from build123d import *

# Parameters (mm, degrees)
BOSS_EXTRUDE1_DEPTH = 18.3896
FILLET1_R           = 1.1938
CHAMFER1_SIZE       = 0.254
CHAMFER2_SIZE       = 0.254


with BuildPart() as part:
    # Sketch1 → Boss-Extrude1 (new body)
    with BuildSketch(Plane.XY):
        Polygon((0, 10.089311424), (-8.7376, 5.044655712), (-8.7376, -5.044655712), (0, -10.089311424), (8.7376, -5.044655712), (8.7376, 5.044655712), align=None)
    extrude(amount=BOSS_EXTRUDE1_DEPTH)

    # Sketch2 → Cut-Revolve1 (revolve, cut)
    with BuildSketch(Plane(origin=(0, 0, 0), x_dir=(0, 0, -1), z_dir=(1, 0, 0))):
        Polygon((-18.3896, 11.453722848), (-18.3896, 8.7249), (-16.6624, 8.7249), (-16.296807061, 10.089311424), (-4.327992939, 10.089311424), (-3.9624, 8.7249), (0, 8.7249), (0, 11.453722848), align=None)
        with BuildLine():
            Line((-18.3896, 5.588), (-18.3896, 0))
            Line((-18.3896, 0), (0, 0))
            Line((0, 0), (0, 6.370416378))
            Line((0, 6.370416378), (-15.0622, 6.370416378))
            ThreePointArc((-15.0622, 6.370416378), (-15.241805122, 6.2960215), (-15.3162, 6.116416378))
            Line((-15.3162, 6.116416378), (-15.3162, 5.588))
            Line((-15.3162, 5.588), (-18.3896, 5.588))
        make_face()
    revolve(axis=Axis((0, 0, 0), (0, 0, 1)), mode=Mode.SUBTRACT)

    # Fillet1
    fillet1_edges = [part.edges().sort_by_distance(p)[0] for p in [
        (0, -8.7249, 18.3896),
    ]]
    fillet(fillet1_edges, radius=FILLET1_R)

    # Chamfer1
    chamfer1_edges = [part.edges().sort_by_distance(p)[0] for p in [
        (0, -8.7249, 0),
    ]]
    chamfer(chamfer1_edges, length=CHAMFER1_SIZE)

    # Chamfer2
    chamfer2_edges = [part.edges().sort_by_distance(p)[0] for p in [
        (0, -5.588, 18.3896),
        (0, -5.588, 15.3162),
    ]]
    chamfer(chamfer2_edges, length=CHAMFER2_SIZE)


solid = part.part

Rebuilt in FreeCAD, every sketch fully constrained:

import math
import FreeCAD as App
import Part
import Sketcher
from FreeCAD import Vector
Q = App.Units.Quantity


def edges_at(feature, points):
    """Names of the edges that pass closest to the given points."""
    edges = feature.Shape.Edges
    near = lambda p: min(range(len(edges)), key=lambda i: edges[i].distToShape(Part.Vertex(*p))[0])
    return sorted({f"Edge{near(p) + 1}" for p in points})


def add_polygon(sketch, points):
    """Adds a closed chain of lines whose ends are joined by coincident constraints."""
    first, n = sketch.GeometryCount, len(points)
    for a, b in zip(points, points[1:] + points[:1]):
        sketch.addGeometry(Part.LineSegment(App.Vector(*a, 0), App.Vector(*b, 0)), False)
    for i in range(n):
        sketch.addConstraint(Sketcher.Constraint("Coincident", first + i, 2, first + (i + 1) % n, 1))

doc = App.newDocument("Part")
body = doc.addObject("PartDesign::Body", "Body")

sketch1 = body.newObject("Sketcher::SketchObject", "Sketch")
sketch1.AttachmentSupport = (doc.getObject("XY_Plane"), [""])
sketch1.MapMode = "FlatFace"
add_polygon(sketch1, [(0, 10.089311), (-8.7376, 5.044656), (-8.7376, -5.044656), (0, -10.089311), (8.7376, -5.044656), (8.7376, 5.044656)])
sketch1.addConstraint([
    Sketcher.Constraint("Vertical", 1),
    Sketcher.Constraint("Vertical", 4),
    Sketcher.Constraint("Symmetric", 0, 2, 3, 2, -1, 1),
    Sketcher.Constraint("Symmetric", 2, 2, 5, 2, -1, 1),
    Sketcher.Constraint("PointOnObject", 2, 2, -2),
    Sketcher.Constraint("Parallel", 2, 5),
    Sketcher.Constraint("Horizontal", 1, 2, 3, 2),
    Sketcher.Constraint("Angle", 0, Q("-150 deg")),
    Sketcher.Constraint("DistanceX", 0, 2, -1, 1, Q("0.344 in")),
    Sketcher.Constraint("DistanceY", 1, 2, 1, 1, 10.089311),
])
pad1 = body.newObject("PartDesign::Pad", "Pad")
pad1.Profile = sketch1
pad1.Length = Q("0.724 in")

sketch2 = body.newObject("Sketcher::SketchObject", "Sketch001")
sketch2.AttachmentSupport = (doc.getObject("YZ_Plane"), [""])
sketch2.MapMode = "FlatFace"
add_polygon(sketch2, [(11.453723, 18.3896), (8.7249, 18.3896), (8.7249, 16.6624), (10.089311, 16.296807), (10.089311, 4.327993), (8.7249, 3.9624), (8.7249, 0), (11.453723, 0)])
sketch2.addGeometry(Part.LineSegment(Vector(5.588, 18.3896, 0), Vector(0, 18.3896, 0)), False)
sketch2.addGeometry(Part.LineSegment(Vector(0, 18.3896, 0), Vector(0, 0, 0)), False)
sketch2.addGeometry(Part.LineSegment(Vector(0, 0, 0), Vector(6.370416, 0, 0)), False)
sketch2.addGeometry(Part.LineSegment(Vector(6.370416, 0, 0), Vector(6.370416, 15.0622, 0)), False)
sketch2.addGeometry(Part.ArcOfCircle(Part.Circle(Vector(6.116416, 15.0622, 0), Vector(0, 0, 1), 0.254), math.radians(0), math.radians(90)), False)
sketch2.addGeometry(Part.LineSegment(Vector(6.116416, 15.3162, 0), Vector(5.588, 15.3162, 0)), False)
sketch2.addGeometry(Part.LineSegment(Vector(5.588, 15.3162, 0), Vector(5.588, 18.3896, 0)), False)
sketch2.addConstraint([
    Sketcher.Constraint("Coincident", 8, 2, 9, 1),
    Sketcher.Constraint("Coincident", 9, 2, 10, 1),
    Sketcher.Constraint("Coincident", 10, 2, 11, 1),
    Sketcher.Constraint("Tangent", 11, 2, 12, 1),
    Sketcher.Constraint("Tangent", 12, 2, 13, 1),
    Sketcher.Constraint("Coincident", 13, 2, 14, 1),
    Sketcher.Constraint("Coincident", 14, 2, 8, 1),
    Sketcher.Constraint("Horizontal", 0),
    Sketcher.Constraint("Vertical", 1),
    Sketcher.Constraint("Vertical", 3),
    Sketcher.Constraint("Vertical", 5),
    Sketcher.Constraint("Horizontal", 6),
    Sketcher.Constraint("Vertical", 7),
    Sketcher.Constraint("Horizontal", 8),
    Sketcher.Constraint("Vertical", 9),
    Sketcher.Constraint("Horizontal", 10),
    Sketcher.Constraint("Vertical", 11),
    Sketcher.Constraint("Horizontal", 13),
    Sketcher.Constraint("Vertical", 14),
    Sketcher.Constraint("Coincident", 9, 2, -1, 1),
    Sketcher.Constraint("PointOnObject", 5, 2, -1),
    Sketcher.Constraint("Horizontal", 7, 2, 8, 2),
    Sketcher.Constraint("Vertical", 1, 2, 4, 2),
    Sketcher.Constraint("Equal", 2, 4),
    Sketcher.Constraint("Radius", 12, Q("0.01 in")),
    Sketcher.Constraint("Angle", 2, Q("-15 deg")),
    Sketcher.Constraint("DistanceX", 8, 2, 8, 1, Q("0.22 in")),
    Sketcher.Constraint("DistanceY", 4, 2, 1, 2, Q("0.5 in")),
    Sketcher.Constraint("DistanceY", 1, 2, 1, 1, Q("0.068 in")),
    Sketcher.Constraint("DistanceY", 5, 2, 5, 1, Q("0.156 in")),
    Sketcher.Constraint("DistanceY", 11, 1, 11, 2, Q("0.593 in")),
    Sketcher.Constraint("DistanceX", -1, 1, 0, 2, Q("0.3435 in")),
    Sketcher.Constraint("DistanceX", 0, 2, 0, 1, 2.728823),
    Sketcher.Constraint("DistanceX", 10, 1, 10, 2, 6.370416),
    Sketcher.Constraint("DistanceY", 3, 2, 3, 1, 11.968814),
])
groove = body.newObject("PartDesign::Groove", "Groove")
groove.Profile = sketch2
groove.ReferenceAxis = (sketch2, ["V_Axis"])
groove.Angle = 360
doc.recompute()

fillet = body.newObject("PartDesign::Fillet", "Fillet")
fillet.Base = (groove, edges_at(groove, [(0, -8.725, 18.39)]))
fillet.Radius = Q("0.047 in")
doc.recompute()

chamfer = body.newObject("PartDesign::Chamfer", "Chamfer")
chamfer.Base = (fillet, edges_at(fillet, [(0, -8.725, 0)]))
chamfer.Size = Q("0.01 in")
doc.recompute()

chamfer2 = body.newObject("PartDesign::Chamfer", "Chamfer001")
chamfer2.Base = (chamfer, edges_at(chamfer, [(0, -5.588, 18.39), (0, -5.588, 15.316)]))
chamfer2.Size = Q("0.01 in")

doc.recompute()
